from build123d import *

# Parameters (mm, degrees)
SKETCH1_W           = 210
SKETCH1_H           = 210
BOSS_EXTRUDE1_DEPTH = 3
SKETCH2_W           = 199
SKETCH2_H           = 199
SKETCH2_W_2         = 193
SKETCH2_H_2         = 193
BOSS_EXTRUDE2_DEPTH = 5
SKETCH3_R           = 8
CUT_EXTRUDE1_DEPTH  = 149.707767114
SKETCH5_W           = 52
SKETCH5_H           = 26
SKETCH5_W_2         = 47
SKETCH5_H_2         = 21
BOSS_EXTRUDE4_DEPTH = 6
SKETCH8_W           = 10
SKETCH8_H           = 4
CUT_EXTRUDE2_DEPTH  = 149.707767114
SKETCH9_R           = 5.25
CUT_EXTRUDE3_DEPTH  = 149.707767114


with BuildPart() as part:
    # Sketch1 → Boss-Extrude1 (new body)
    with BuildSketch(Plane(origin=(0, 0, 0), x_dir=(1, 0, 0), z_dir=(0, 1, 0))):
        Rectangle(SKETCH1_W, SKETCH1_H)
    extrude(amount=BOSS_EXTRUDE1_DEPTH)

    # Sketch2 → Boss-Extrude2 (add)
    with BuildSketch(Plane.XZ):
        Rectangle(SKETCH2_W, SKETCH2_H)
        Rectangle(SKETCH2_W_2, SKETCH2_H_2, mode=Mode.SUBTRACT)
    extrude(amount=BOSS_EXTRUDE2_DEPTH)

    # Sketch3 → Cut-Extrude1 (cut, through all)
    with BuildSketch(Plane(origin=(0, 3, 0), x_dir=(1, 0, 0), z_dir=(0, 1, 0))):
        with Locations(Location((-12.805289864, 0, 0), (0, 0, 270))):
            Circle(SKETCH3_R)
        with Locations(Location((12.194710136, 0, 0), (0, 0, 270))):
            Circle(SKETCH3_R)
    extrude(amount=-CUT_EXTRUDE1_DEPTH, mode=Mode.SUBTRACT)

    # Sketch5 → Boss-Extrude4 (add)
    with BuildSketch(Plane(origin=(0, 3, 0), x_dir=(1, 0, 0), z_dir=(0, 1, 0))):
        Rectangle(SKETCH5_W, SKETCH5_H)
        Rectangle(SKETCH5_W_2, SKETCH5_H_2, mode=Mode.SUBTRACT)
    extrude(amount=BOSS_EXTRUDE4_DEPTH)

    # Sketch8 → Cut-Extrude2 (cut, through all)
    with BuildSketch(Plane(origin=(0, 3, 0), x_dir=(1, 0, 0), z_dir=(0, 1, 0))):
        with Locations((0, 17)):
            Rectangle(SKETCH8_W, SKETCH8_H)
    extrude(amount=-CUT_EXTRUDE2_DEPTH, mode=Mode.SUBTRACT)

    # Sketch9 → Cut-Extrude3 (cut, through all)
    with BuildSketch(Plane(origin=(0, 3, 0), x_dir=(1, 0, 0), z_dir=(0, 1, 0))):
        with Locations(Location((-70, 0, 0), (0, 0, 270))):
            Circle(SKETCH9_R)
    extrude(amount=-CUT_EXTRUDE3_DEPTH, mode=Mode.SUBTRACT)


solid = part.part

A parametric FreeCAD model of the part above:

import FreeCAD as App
import Part
import Sketcher
from FreeCAD import Vector
Q = App.Units.Quantity


def add_polygon(sketch, points):
    """Adds a closed chain of lines whose ends are joined by coincident constraints."""
    first, n = sketch.GeometryCount, len(points)
    for a, b in zip(points, points[1:] + points[:1]):
        sketch.addGeometry(Part.LineSegment(App.Vector(*a, 0), App.Vector(*b, 0)), False)
    for i in range(n):
        sketch.addConstraint(Sketcher.Constraint("Coincident", first + i, 2, first + (i + 1) % n, 1))

doc = App.newDocument("Part")
body = doc.addObject("PartDesign::Body", "Body")

# Sketch on XZ plane
sketch1 = doc.addObject("Sketcher::SketchObject", "Sketch")
body.addObject(sketch1)
sketch1.AttachmentSupport = (doc.XZ_Plane, [""])
sketch1.MapMode = "FlatFace"
add_polygon(sketch1, [(-105, -105), (-105, 105), (105, 105), (105, -105)])  # lines 0-3
sketch1.addConstraint([
    Sketcher.Constraint("Vertical", 0),
    Sketcher.Constraint("Horizontal", 1),
    Sketcher.Constraint("Vertical", 2),
    Sketcher.Constraint("Horizontal", 3),
    Sketcher.Constraint("Symmetric", 0, 2, 2, 2, -1, 1),
    Sketcher.Constraint("Equal", 3, 0),
    Sketcher.Constraint("DistanceX", 1, 1, 1, 2, Q("210 mm")),
])
pad1 = doc.addObject("PartDesign::Pad", "Pad")
body.addObject(pad1)
pad1.Profile = sketch1
pad1.Length = 3
pad1.Reversed = True

# Sketch on XZ plane
sketch2 = doc.addObject("Sketcher::SketchObject", "Sketch001")
body.addObject(sketch2)
sketch2.AttachmentSupport = (doc.XZ_Plane, [""])
sketch2.MapMode = "FlatFace"
add_polygon(sketch2, [(-100, 100), (-100, -100), (100, -100), (100, 100)])  # lines 0-3
add_polygon(sketch2, [(96, -96), (-96, -96), (-96, 96), (96, 96)])  # lines 4-7
sketch2.addConstraint([
    Sketcher.Constraint("Vertical", 0),
    Sketcher.Constraint("Horizontal", 1),
    Sketcher.Constraint("Vertical", 2),
    Sketcher.Constraint("Horizontal", 3),
    Sketcher.Constraint("Horizontal", 4),
    Sketcher.Constraint("Vertical", 5),
    Sketcher.Constraint("Horizontal", 6),
    Sketcher.Constraint("Vertical", 7),
    Sketcher.Constraint("Symmetric", 0, 2, 2, 2, -1, 1),
    Sketcher.Constraint("Symmetric", 4, 2, 6, 2, -1, 1),
    Sketcher.Constraint("Equal", 3, 0),
    Sketcher.Constraint("Equal", 6, 5),
    Sketcher.Constraint("DistanceX", 1, 1, 1, 2, Q("199 mm")),
    Sketcher.Constraint("DistanceX", 4, 2, 4, 1, Q("193 mm")),
])
pad2 = doc.addObject("PartDesign::Pad", "Pad001")
body.addObject(pad2)
pad2.Profile = sketch2
pad2.Length = 5

# Sketch on XZ plane
sketch3 = doc.addObject("Sketcher::SketchObject", "Sketch002")
body.addObject(sketch3)
sketch3.AttachmentSupport = (doc.XZ_Plane, [""])
sketch3.MapMode = "FlatFace"
sketch3.AttachmentOffset = App.Placement(Vector(0, 0, -3), App.Rotation())
sketch3.addGeometry([
    Part.Circle(Vector(-13, 0, 0), Vector(0, 0, 1), 8),
    Part.Circle(Vector(12, 0, 0), Vector(0, 0, 1), 8),
], False)
sketch3.addConstraint([
    Sketcher.Constraint("Equal", 0, 1),
    Sketcher.Constraint("PointOnObject", 0, 3, -1),
    Sketcher.Constraint("PointOnObject", 1, 3, -1),
    Sketcher.Constraint("Diameter", 0, Q("16 mm")),
    Sketcher.Constraint("DistanceX", 0, 3, 1, 3, Q("25 mm")),
    Sketcher.Constraint("DistanceX", 0, 3, -1, 1, Q("12.80529 mm")),
])
pocket1 = doc.addObject("PartDesign::Pocket", "Pocket")
body.addObject(pocket1)
pocket1.Profile = sketch3
pocket1.Type = "ThroughAll"
pocket1.Reversed = True

# Sketch on XZ plane
sketch4 = doc.addObject("Sketcher::SketchObject", "Sketch003")
body.addObject(sketch4)
sketch4.AttachmentSupport = (doc.XZ_Plane, [""])
sketch4.MapMode = "FlatFace"
sketch4.AttachmentOffset = App.Placement(Vector(0, 0, -3), App.Rotation())
add_polygon(sketch4, [(-26, -13), (-26, 13), (26, 13), (26, -13)])  # lines 0-3
add_polygon(sketch4, [(24, 10), (-24, 10), (-24, -10), (24, -10)])  # lines 4-7
sketch4.addConstraint([
    Sketcher.Constraint("Vertical", 0),
    Sketcher.Constraint("Horizontal", 1),
    Sketcher.Constraint("Vertical", 2),
    Sketcher.Constraint("Horizontal", 3),
    Sketcher.Constraint("Horizontal", 4),
    Sketcher.Constraint("Vertical", 5),
    Sketcher.Constraint("Horizontal", 6),
    Sketcher.Constraint("Vertical", 7),
    Sketcher.Constraint("Symmetric", 0, 2, 2, 2, -1, 1),
    Sketcher.Constraint("Symmetric", 4, 2, 6, 2, -1, 1),
    Sketcher.Constraint("DistanceX", 1, 1, 1, 2, Q("52 mm")),
    Sketcher.Constraint("DistanceX", 4, 2, 4, 1, Q("47 mm")),
    Sketcher.Constraint("DistanceY", 0, 1, 0, 2, Q("26 mm")),
    Sketcher.Constraint("DistanceY", 5, 2, 5, 1, Q("21 mm")),
])
pad3 = doc.addObject("PartDesign::Pad", "Pad002")
body.addObject(pad3)
pad3.Profile = sketch4
pad3.Length = 6
pad3.Reversed = True

# Sketch on XZ plane
sketch5 = doc.addObject("Sketcher::SketchObject", "Sketch004")
body.addObject(sketch5)
sketch5.AttachmentSupport = (doc.XZ_Plane, [""])
sketch5.MapMode = "FlatFace"
sketch5.AttachmentOffset = App.Placement(Vector(0, 0, -3), App.Rotation())
add_polygon(sketch5, [(-5, -19), (-5, -15), (5, -15), (5, -19)])  # lines 0-3
sketch5.addConstraint([
    Sketcher.Constraint("Vertical", 0),
    Sketcher.Constraint("Horizontal", 1),
    Sketcher.Constraint("Vertical", 2),
    Sketcher.Constraint("Horizontal", 3),
    Sketcher.Constraint("DistanceX", 1, 1, 1, 2, Q("10 mm")),
    Sketcher.Constraint("DistanceY", 0, 1, 0, 2, Q("4 mm")),
    Sketcher.Constraint("DistanceX", 0, 2, -1, 1, Q("5 mm")),
    Sketcher.Constraint("DistanceY", 0, 2, -1, 1, Q("15 mm")),
])
pocket2 = doc.addObject("PartDesign::Pocket", "Pocket001")
body.addObject(pocket2)
pocket2.Profile = sketch5
pocket2.Type = "ThroughAll"
pocket2.Reversed = True

# Sketch on XZ plane
sketch6 = doc.addObject("Sketcher::SketchObject", "Sketch005")
body.addObject(sketch6)
sketch6.AttachmentSupport = (doc.XZ_Plane, [""])
sketch6.MapMode = "FlatFace"
sketch6.AttachmentOffset = App.Placement(Vector(0, 0, -3), App.Rotation())
sketch6.addGeometry(Part.Circle(Vector(-70, 0, 0), Vector(0, 0, 1), 5), False)
sketch6.addConstraint([
    Sketcher.Constraint("PointOnObject", 0, 3, -1),
    Sketcher.Constraint("Diameter", 0, Q("10.5 mm")),
    Sketcher.Constraint("DistanceX", 0, 3, -1, 1, Q("70 mm")),
])
pocket3 = doc.addObject("PartDesign::Pocket", "Pocket002")
body.addObject(pocket3)
pocket3.Profile = sketch6
pocket3.Type = "ThroughAll"
pocket3.Reversed = True

doc.recompute()
